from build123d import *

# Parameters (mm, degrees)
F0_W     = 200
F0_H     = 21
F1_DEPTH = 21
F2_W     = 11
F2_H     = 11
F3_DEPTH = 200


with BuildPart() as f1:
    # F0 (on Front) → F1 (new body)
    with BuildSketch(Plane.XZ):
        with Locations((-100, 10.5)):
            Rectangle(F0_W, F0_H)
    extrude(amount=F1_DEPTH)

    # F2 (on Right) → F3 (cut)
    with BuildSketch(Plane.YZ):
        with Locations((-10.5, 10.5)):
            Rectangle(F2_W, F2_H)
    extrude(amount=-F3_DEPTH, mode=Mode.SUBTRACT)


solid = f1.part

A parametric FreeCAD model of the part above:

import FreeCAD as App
import Part
import Sketcher
from FreeCAD import Vector
Q = App.Units.Quantity


def add_polygon(sketch, points):
    """Adds a closed chain of lines whose ends are joined by coincident constraints."""
    first, n = sketch.GeometryCount, len(points)
    for a, b in zip(points, points[1:] + points[:1]):
        sketch.addGeometry(Part.LineSegment(App.Vector(*a, 0), App.Vector(*b, 0)), False)
    for i in range(n):
        sketch.addConstraint(Sketcher.Constraint("Coincident", first + i, 2, first + (i + 1) % n, 1))

doc = App.newDocument("Part")
params = doc.addObject("Spreadsheet::Sheet", "Params")
for row, (alias, value) in enumerate([
    ("sketch1_width", "200 mm"),
    ("sketch1_height", "21 mm"),
    ("pad1_length", "21 mm"),
    ("sketch2_width", "11 mm"),
    ("pocket1_length", "200 mm"),
], start=1):
    params.set(f"A{row}", alias)
    params.set(f"B{row}", "=" + value)
    params.setAlias(f"B{row}", alias)

body = doc.addObject("PartDesign::Body", "Body")

# Sketch on XZ plane
sketch1 = body.newObject("Sketcher::SketchObject", "Sketch")
sketch1.AttachmentSupport = (doc.getObject("XZ_Plane"), [""])
sketch1.MapMode = "FlatFace"
add_polygon(sketch1, [(-200, 21), (-200, 0), (0, 0), (0, 21)])  # lines 0-3
sketch1.addConstraint([
    Sketcher.Constraint("Vertical", 0),
    Sketcher.Constraint("Horizontal", 1),
    Sketcher.Constraint("Vertical", 2),
    Sketcher.Constraint("Horizontal", 3),
    Sketcher.Constraint("Coincident", 1, 2, -1, 1),
    Sketcher.Constraint("DistanceX", 1, 1, 1, 2, Q("200 mm")),
    Sketcher.Constraint("DistanceY", 0, 2, 0, 1, Q("21 mm")),
])
sketch1.setExpression("Constraints[9]", "Params.sketch1_width")
sketch1.setExpression("Constraints[10]", "Params.sketch1_height")
pad1 = body.newObject("PartDesign::Pad", "Pad")
pad1.Profile = sketch1
pad1.setExpression("Length", "Params.pad1_length")

# Sketch on YZ plane
sketch2 = body.newObject("Sketcher::SketchObject", "Sketch001")
sketch2.AttachmentSupport = (doc.getObject("YZ_Plane"), [""])
sketch2.MapMode = "FlatFace"
add_polygon(sketch2, [(-16, 16), (-16, 5), (-5, 5), (-5, 16)])  # lines 0-3
sketch2.addConstraint([
    Sketcher.Constraint("Vertical", 0),
    Sketcher.Constraint("Horizontal", 1),
    Sketcher.Constraint("Vertical", 2),
    Sketcher.Constraint("Horizontal", 3),
    Sketcher.Constraint("Equal", 3, 0),
    Sketcher.Constraint("DistanceX", 1, 1, 1, 2, Q("11 mm")),
    Sketcher.Constraint("DistanceX", 0, 2, -1, 1, Q("16 mm")),
    Sketcher.Constraint("DistanceY", -1, 1, 0, 2, Q("5 mm")),
])
sketch2.setExpression("Constraints[9]", "Params.sketch2_width")
pocket1 = body.newObject("PartDesign::Pocket", "Pocket")
pocket1.Profile = sketch2
pocket1.setExpression("Length", "Params.pocket1_length")

doc.recompute()
